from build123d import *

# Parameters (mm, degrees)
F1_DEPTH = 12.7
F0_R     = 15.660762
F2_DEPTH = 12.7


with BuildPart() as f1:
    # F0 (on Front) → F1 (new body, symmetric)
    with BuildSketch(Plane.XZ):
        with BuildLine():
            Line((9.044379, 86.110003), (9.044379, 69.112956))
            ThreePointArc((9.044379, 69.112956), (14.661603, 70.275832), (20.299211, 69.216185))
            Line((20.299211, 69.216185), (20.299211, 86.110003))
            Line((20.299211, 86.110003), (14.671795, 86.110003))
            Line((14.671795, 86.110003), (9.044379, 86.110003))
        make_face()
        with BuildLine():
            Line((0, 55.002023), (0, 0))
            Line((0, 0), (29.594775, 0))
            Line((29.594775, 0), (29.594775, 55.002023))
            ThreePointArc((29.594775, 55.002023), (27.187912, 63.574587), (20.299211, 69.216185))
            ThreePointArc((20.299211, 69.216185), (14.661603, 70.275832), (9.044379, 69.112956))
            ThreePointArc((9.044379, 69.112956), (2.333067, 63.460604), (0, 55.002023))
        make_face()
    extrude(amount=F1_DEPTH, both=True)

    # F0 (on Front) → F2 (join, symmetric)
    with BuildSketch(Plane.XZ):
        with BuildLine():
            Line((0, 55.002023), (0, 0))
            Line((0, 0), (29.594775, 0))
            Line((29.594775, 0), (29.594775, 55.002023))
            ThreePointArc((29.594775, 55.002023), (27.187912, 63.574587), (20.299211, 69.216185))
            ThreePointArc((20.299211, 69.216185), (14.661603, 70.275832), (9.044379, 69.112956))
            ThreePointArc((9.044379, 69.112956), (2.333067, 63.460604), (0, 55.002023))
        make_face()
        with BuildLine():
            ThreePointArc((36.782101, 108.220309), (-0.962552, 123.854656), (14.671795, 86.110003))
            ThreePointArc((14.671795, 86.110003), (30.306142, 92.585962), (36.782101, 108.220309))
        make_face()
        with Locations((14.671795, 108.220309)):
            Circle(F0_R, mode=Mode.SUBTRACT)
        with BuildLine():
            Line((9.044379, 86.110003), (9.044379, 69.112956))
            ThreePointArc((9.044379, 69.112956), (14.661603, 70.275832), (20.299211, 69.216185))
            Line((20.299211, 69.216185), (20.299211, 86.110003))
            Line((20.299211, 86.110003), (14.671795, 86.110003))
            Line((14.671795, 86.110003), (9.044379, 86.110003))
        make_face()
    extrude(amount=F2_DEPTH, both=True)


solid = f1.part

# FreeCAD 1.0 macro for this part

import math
import FreeCAD as App
import Part
import Sketcher
Q = App.Units.Quantity

doc = App.newDocument("Part")
body = doc.addObject("PartDesign::Body", "Body")
body.AllowCompound = True

sketch1 = body.newObject("Sketcher::SketchObject", "Sketch")
sketch1.AttachmentSupport = (doc.getObject("XZ_Plane"), [""])
sketch1.MapMode = "FlatFace"
sketch1.addGeometry([
    Part.LineSegment(App.Vector(9, 86, 0), App.Vector(9, 69, 0)),
    Part.ArcOfCircle(Part.Circle(App.Vector(15, 55, 0), App.Vector(0, 0, 1), 15), math.radians(113), math.radians(182)),
    Part.LineSegment(App.Vector(0, 55, 0), App.Vector(0, 0, 0)),
    Part.LineSegment(App.Vector(0, 0, 0), App.Vector(30, 0, 0)),
    Part.LineSegment(App.Vector(30, 0, 0), App.Vector(30, 55, 0)),
    Part.ArcOfCircle(Part.Circle(App.Vector(15, 55, 0), App.Vector(0, 0, 1), 15), math.radians(-2), math.radians(68)),
    Part.LineSegment(App.Vector(20, 69, 0), App.Vector(20, 86, 0)),
    Part.LineSegment(App.Vector(20, 86, 0), App.Vector(9, 86, 0)),
], False)
sketch1.addConstraint([
    Sketcher.Constraint("Coincident", 0, 2, 1, 1),
    Sketcher.Constraint("Coincident", 1, 2, 2, 1),
    Sketcher.Constraint("Coincident", 2, 2, 3, 1),
    Sketcher.Constraint("Coincident", 3, 2, 4, 1),
    Sketcher.Constraint("Coincident", 4, 2, 5, 1),
    Sketcher.Constraint("Coincident", 5, 2, 6, 1),
    Sketcher.Constraint("Coincident", 6, 2, 7, 1),
    Sketcher.Constraint("Coincident", 7, 2, 0, 1),
    Sketcher.Constraint("Vertical", 0),
    Sketcher.Constraint("Vertical", 2),
    Sketcher.Constraint("Horizontal", 3),
    Sketcher.Constraint("Vertical", 4),
    Sketcher.Constraint("Vertical", 6),
    Sketcher.Constraint("Horizontal", 7),
    Sketcher.Constraint("Coincident", 2, 2, -1, 1),
    Sketcher.Constraint("Coincident", 5, 3, 1, 3),
    Sketcher.Constraint("Horizontal", 1, 2, 4, 2),
    Sketcher.Constraint("Radius", 1, Q("14.80484 mm")),
    Sketcher.Constraint("Radius", 5, Q("14.804835 mm")),
    Sketcher.Constraint("DistanceY", 6, 1, 6, 2, Q("16.893818 mm")),
    Sketcher.Constraint("DistanceX", 3, 1, 3, 2, Q("29.594775 mm")),
    Sketcher.Constraint("DistanceX", 7, 2, 7, 1, Q("11.254832 mm")),
    Sketcher.Constraint("DistanceY", 0, 2, 0, 1, Q("16.997047 mm")),
    Sketcher.Constraint("DistanceY", 2, 2, 2, 1, Q("55.002023 mm")),
])
pad1 = body.newObject("PartDesign::Pad", "Pad")
pad1.Profile = sketch1
pad1.Length = Q("1 in")
pad1.Midplane = True

sketch2 = body.newObject("Sketcher::SketchObject", "Sketch001")
sketch2.AttachmentSupport = (doc.getObject("XZ_Plane"), [""])
sketch2.MapMode = "FlatFace"
sketch2.addGeometry([
    Part.LineSegment(App.Vector(0, 55.002023, 0), App.Vector(0, 0, 0)),
    Part.LineSegment(App.Vector(0, 0, 0), App.Vector(29.594775, 0, 0)),
    Part.LineSegment(App.Vector(29.594775, 0, 0), App.Vector(29.594775, 55.002023, 0)),
    Part.ArcOfCircle(Part.Circle(App.Vector(14.79739, 55.471619, 0), App.Vector(0, 0, 1), 14.804835), math.radians(-1.817676), math.radians(68.184236)),
    Part.LineSegment(App.Vector(20.299211, 69.216185, 0), App.Vector(20.299211, 86.110003, 0)),
    Part.LineSegment(App.Vector(20.299211, 86.110003, 0), App.Vector(14.671795, 86.110003, 0)),
    Part.LineSegment(App.Vector(14.671795, 86.110003, 0), App.Vector(9.044379, 86.110003, 0)),
    Part.LineSegment(App.Vector(9.044379, 86.110003, 0), App.Vector(9.044379, 69.112956, 0)),
    Part.ArcOfCircle(Part.Circle(App.Vector(14.797391, 55.471616, 0), App.Vector(0, 0, 1), 14.80484), math.radians(112.866789), math.radians(181.817664)),
    Part.ArcOfCircle(Part.Circle(App.Vector(14.671795, 108.220309, 0), App.Vector(0, 0, 1), 22.110306), math.radians(0), math.radians(270)),
    Part.ArcOfCircle(Part.Circle(App.Vector(14.671794, 108.22031, 0), App.Vector(0, 0, 1), 22.110307), math.radians(-89.999997), math.radians(-0.000003)),
    Part.Circle(App.Vector(14.671795, 108.220309, 0), App.Vector(0, 0, 1), 15.660762),
], False)
sketch2.addConstraint([
    Sketcher.Constraint("Coincident", 0, 2, 1, 1),
    Sketcher.Constraint("Coincident", 1, 2, 2, 1),
    Sketcher.Constraint("Coincident", 2, 2, 3, 1),
    Sketcher.Constraint("Coincident", 3, 2, 4, 1),
    Sketcher.Constraint("Coincident", 4, 2, 5, 1),
    Sketcher.Constraint("Coincident", 5, 2, 6, 1),
    Sketcher.Constraint("Coincident", 6, 2, 7, 1),
    Sketcher.Constraint("Coincident", 7, 2, 8, 1),
    Sketcher.Constraint("Coincident", 8, 2, 0, 1),
    Sketcher.Constraint("Tangent", 9, 1, 10, 2),
    Sketcher.Constraint("Coincident", 10, 1, 9, 2),
    Sketcher.Constraint("Vertical", 0),
    Sketcher.Constraint("Horizontal", 1),
    Sketcher.Constraint("Vertical", 2),
    Sketcher.Constraint("Vertical", 4),
    Sketcher.Constraint("Horizontal", 5),
    Sketcher.Constraint("Horizontal", 6),
    Sketcher.Constraint("Vertical", 7),
    Sketcher.Constraint("Coincident", 0, 2, -1, 1),
    Sketcher.Constraint("Coincident", 8, 3, 3, 3),
    Sketcher.Constraint("Coincident", 11, 3, 9, 3),
    Sketcher.Constraint("Coincident", 10, 1, 5, 2),
    Sketcher.Constraint("Horizontal", 2, 2, 8, 2),
    Sketcher.Constraint("Horizontal", 11, 3, 9, 1),
    Sketcher.Constraint("Vertical", 11, 3, 5, 2),
    Sketcher.Constraint("Equal", 5, 6),
    Sketcher.Constraint("Radius", 8, Q("14.80484 mm")),
    Sketcher.Constraint("Diameter", 11, Q("31.321524 mm")),
    Sketcher.Constraint("Radius", 3, Q("14.804835 mm")),
    Sketcher.Constraint("Radius", 9, Q("22.110306 mm")),
    Sketcher.Constraint("DistanceY", 4, 1, 4, 2, Q("16.893818 mm")),
    Sketcher.Constraint("DistanceX", -1, 1, 9, 1, Q("36.782101 mm")),
    Sketcher.Constraint("DistanceX", 1, 1, 1, 2, Q("29.594775 mm")),
    Sketcher.Constraint("DistanceX", 5, 2, 5, 1, Q("5.627416 mm")),
    Sketcher.Constraint("DistanceY", 0, 2, 0, 1, Q("55.002023 mm")),
])
pad2 = body.newObject("PartDesign::Pad", "Pad001")
pad2.Profile = sketch2
pad2.Length = Q("1 in")
pad2.Midplane = True

doc.recompute()
